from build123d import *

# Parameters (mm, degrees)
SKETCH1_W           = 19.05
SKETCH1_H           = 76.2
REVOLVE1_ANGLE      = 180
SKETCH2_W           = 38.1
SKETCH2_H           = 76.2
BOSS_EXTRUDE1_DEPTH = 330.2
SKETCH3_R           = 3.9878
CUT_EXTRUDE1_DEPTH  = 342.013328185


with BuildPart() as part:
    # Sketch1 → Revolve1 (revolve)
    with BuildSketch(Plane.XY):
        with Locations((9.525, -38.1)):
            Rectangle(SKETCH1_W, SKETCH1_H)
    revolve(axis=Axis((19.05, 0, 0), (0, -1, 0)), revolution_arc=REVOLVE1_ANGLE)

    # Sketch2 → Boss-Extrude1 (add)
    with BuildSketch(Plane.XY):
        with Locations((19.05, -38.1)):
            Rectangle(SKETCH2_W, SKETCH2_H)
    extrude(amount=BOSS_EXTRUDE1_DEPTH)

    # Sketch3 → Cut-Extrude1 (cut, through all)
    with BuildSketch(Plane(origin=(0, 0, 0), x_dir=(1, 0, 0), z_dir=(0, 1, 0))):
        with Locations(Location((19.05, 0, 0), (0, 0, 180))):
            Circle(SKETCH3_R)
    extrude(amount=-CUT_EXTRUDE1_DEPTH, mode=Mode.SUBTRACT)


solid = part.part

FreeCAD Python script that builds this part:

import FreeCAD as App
import Part
import Sketcher
from FreeCAD import Vector
Q = App.Units.Quantity


def add_polygon(sketch, points):
    """Adds a closed chain of lines whose ends are joined by coincident constraints."""
    first, n = sketch.GeometryCount, len(points)
    for a, b in zip(points, points[1:] + points[:1]):
        sketch.addGeometry(Part.LineSegment(App.Vector(*a, 0), App.Vector(*b, 0)), False)
    for i in range(n):
        sketch.addConstraint(Sketcher.Constraint("Coincident", first + i, 2, first + (i + 1) % n, 1))

doc = App.newDocument("Part")
body = doc.addObject("PartDesign::Body", "Body")

sketch1 = body.newObject("Sketcher::SketchObject", "Sketch")
sketch1.AttachmentSupport = (doc.getObject("XY_Plane"), [""])
sketch1.MapMode = "FlatFace"
add_polygon(sketch1, [(0, 0), (0, -76), (19, -76), (19, 0)])
sketch1.addGeometry(Part.LineSegment(Vector(19, 0, 0), Vector(19, -76, 0)), True)
sketch1.addConstraint([
    Sketcher.Constraint("Vertical", 0),
    Sketcher.Constraint("Horizontal", 1),
    Sketcher.Constraint("Vertical", 2),
    Sketcher.Constraint("Horizontal", 3),
    Sketcher.Constraint("Vertical", 4),
    Sketcher.Constraint("Coincident", 3, 2, -1, 1),
    Sketcher.Constraint("Coincident", 4, 1, 2, 2),
    Sketcher.Constraint("Horizontal", 0, 2, 4, 2),
    Sketcher.Constraint("DistanceY", 0, 2, 0, 1, Q("3 in")),
    Sketcher.Constraint("DistanceX", 1, 1, 1, 2, Q("0.75 in")),
])
revolution = body.newObject("PartDesign::Revolution", "Revolution")
revolution.Profile = sketch1
revolution.ReferenceAxis = (sketch1, ["Axis0"])
revolution.Angle = 180

sketch2 = body.newObject("Sketcher::SketchObject", "Sketch001")
sketch2.AttachmentSupport = (doc.getObject("XY_Plane"), [""])
sketch2.MapMode = "FlatFace"
add_polygon(sketch2, [(0, 0), (0, -76), (38, -76), (38, 0)])
sketch2.addConstraint([
    Sketcher.Constraint("Vertical", 0),
    Sketcher.Constraint("Horizontal", 1),
    Sketcher.Constraint("Vertical", 2),
    Sketcher.Constraint("Horizontal", 3),
    Sketcher.Constraint("Coincident", 3, 2, -1, 1),
    Sketcher.Constraint("DistanceY", 0, 2, 0, 1, Q("3 in")),
    Sketcher.Constraint("DistanceX", 1, 1, 1, 2, Q("1.5 in")),
])
pad1 = body.newObject("PartDesign::Pad", "Pad")
pad1.Profile = sketch2
pad1.Length = Q("13 in")

sketch3 = body.newObject("Sketcher::SketchObject", "Sketch002")
sketch3.AttachmentSupport = (doc.getObject("XZ_Plane"), [""])
sketch3.MapMode = "FlatFace"
sketch3.addGeometry(Part.Circle(Vector(19.1, 0, 0), Vector(0, 0, 1), 4), False)
sketch3.addConstraint([
    Sketcher.Constraint("PointOnObject", 0, 3, -1),
    Sketcher.Constraint("Diameter", 0, Q("0.314 in")),
    Sketcher.Constraint("DistanceX", -1, 1, 0, 3, Q("0.75 in")),
])
pocket1 = body.newObject("PartDesign::Pocket", "Pocket")
pocket1.Profile = sketch3
pocket1.Type = "ThroughAll"
pocket1.Reversed = True

doc.recompute()
